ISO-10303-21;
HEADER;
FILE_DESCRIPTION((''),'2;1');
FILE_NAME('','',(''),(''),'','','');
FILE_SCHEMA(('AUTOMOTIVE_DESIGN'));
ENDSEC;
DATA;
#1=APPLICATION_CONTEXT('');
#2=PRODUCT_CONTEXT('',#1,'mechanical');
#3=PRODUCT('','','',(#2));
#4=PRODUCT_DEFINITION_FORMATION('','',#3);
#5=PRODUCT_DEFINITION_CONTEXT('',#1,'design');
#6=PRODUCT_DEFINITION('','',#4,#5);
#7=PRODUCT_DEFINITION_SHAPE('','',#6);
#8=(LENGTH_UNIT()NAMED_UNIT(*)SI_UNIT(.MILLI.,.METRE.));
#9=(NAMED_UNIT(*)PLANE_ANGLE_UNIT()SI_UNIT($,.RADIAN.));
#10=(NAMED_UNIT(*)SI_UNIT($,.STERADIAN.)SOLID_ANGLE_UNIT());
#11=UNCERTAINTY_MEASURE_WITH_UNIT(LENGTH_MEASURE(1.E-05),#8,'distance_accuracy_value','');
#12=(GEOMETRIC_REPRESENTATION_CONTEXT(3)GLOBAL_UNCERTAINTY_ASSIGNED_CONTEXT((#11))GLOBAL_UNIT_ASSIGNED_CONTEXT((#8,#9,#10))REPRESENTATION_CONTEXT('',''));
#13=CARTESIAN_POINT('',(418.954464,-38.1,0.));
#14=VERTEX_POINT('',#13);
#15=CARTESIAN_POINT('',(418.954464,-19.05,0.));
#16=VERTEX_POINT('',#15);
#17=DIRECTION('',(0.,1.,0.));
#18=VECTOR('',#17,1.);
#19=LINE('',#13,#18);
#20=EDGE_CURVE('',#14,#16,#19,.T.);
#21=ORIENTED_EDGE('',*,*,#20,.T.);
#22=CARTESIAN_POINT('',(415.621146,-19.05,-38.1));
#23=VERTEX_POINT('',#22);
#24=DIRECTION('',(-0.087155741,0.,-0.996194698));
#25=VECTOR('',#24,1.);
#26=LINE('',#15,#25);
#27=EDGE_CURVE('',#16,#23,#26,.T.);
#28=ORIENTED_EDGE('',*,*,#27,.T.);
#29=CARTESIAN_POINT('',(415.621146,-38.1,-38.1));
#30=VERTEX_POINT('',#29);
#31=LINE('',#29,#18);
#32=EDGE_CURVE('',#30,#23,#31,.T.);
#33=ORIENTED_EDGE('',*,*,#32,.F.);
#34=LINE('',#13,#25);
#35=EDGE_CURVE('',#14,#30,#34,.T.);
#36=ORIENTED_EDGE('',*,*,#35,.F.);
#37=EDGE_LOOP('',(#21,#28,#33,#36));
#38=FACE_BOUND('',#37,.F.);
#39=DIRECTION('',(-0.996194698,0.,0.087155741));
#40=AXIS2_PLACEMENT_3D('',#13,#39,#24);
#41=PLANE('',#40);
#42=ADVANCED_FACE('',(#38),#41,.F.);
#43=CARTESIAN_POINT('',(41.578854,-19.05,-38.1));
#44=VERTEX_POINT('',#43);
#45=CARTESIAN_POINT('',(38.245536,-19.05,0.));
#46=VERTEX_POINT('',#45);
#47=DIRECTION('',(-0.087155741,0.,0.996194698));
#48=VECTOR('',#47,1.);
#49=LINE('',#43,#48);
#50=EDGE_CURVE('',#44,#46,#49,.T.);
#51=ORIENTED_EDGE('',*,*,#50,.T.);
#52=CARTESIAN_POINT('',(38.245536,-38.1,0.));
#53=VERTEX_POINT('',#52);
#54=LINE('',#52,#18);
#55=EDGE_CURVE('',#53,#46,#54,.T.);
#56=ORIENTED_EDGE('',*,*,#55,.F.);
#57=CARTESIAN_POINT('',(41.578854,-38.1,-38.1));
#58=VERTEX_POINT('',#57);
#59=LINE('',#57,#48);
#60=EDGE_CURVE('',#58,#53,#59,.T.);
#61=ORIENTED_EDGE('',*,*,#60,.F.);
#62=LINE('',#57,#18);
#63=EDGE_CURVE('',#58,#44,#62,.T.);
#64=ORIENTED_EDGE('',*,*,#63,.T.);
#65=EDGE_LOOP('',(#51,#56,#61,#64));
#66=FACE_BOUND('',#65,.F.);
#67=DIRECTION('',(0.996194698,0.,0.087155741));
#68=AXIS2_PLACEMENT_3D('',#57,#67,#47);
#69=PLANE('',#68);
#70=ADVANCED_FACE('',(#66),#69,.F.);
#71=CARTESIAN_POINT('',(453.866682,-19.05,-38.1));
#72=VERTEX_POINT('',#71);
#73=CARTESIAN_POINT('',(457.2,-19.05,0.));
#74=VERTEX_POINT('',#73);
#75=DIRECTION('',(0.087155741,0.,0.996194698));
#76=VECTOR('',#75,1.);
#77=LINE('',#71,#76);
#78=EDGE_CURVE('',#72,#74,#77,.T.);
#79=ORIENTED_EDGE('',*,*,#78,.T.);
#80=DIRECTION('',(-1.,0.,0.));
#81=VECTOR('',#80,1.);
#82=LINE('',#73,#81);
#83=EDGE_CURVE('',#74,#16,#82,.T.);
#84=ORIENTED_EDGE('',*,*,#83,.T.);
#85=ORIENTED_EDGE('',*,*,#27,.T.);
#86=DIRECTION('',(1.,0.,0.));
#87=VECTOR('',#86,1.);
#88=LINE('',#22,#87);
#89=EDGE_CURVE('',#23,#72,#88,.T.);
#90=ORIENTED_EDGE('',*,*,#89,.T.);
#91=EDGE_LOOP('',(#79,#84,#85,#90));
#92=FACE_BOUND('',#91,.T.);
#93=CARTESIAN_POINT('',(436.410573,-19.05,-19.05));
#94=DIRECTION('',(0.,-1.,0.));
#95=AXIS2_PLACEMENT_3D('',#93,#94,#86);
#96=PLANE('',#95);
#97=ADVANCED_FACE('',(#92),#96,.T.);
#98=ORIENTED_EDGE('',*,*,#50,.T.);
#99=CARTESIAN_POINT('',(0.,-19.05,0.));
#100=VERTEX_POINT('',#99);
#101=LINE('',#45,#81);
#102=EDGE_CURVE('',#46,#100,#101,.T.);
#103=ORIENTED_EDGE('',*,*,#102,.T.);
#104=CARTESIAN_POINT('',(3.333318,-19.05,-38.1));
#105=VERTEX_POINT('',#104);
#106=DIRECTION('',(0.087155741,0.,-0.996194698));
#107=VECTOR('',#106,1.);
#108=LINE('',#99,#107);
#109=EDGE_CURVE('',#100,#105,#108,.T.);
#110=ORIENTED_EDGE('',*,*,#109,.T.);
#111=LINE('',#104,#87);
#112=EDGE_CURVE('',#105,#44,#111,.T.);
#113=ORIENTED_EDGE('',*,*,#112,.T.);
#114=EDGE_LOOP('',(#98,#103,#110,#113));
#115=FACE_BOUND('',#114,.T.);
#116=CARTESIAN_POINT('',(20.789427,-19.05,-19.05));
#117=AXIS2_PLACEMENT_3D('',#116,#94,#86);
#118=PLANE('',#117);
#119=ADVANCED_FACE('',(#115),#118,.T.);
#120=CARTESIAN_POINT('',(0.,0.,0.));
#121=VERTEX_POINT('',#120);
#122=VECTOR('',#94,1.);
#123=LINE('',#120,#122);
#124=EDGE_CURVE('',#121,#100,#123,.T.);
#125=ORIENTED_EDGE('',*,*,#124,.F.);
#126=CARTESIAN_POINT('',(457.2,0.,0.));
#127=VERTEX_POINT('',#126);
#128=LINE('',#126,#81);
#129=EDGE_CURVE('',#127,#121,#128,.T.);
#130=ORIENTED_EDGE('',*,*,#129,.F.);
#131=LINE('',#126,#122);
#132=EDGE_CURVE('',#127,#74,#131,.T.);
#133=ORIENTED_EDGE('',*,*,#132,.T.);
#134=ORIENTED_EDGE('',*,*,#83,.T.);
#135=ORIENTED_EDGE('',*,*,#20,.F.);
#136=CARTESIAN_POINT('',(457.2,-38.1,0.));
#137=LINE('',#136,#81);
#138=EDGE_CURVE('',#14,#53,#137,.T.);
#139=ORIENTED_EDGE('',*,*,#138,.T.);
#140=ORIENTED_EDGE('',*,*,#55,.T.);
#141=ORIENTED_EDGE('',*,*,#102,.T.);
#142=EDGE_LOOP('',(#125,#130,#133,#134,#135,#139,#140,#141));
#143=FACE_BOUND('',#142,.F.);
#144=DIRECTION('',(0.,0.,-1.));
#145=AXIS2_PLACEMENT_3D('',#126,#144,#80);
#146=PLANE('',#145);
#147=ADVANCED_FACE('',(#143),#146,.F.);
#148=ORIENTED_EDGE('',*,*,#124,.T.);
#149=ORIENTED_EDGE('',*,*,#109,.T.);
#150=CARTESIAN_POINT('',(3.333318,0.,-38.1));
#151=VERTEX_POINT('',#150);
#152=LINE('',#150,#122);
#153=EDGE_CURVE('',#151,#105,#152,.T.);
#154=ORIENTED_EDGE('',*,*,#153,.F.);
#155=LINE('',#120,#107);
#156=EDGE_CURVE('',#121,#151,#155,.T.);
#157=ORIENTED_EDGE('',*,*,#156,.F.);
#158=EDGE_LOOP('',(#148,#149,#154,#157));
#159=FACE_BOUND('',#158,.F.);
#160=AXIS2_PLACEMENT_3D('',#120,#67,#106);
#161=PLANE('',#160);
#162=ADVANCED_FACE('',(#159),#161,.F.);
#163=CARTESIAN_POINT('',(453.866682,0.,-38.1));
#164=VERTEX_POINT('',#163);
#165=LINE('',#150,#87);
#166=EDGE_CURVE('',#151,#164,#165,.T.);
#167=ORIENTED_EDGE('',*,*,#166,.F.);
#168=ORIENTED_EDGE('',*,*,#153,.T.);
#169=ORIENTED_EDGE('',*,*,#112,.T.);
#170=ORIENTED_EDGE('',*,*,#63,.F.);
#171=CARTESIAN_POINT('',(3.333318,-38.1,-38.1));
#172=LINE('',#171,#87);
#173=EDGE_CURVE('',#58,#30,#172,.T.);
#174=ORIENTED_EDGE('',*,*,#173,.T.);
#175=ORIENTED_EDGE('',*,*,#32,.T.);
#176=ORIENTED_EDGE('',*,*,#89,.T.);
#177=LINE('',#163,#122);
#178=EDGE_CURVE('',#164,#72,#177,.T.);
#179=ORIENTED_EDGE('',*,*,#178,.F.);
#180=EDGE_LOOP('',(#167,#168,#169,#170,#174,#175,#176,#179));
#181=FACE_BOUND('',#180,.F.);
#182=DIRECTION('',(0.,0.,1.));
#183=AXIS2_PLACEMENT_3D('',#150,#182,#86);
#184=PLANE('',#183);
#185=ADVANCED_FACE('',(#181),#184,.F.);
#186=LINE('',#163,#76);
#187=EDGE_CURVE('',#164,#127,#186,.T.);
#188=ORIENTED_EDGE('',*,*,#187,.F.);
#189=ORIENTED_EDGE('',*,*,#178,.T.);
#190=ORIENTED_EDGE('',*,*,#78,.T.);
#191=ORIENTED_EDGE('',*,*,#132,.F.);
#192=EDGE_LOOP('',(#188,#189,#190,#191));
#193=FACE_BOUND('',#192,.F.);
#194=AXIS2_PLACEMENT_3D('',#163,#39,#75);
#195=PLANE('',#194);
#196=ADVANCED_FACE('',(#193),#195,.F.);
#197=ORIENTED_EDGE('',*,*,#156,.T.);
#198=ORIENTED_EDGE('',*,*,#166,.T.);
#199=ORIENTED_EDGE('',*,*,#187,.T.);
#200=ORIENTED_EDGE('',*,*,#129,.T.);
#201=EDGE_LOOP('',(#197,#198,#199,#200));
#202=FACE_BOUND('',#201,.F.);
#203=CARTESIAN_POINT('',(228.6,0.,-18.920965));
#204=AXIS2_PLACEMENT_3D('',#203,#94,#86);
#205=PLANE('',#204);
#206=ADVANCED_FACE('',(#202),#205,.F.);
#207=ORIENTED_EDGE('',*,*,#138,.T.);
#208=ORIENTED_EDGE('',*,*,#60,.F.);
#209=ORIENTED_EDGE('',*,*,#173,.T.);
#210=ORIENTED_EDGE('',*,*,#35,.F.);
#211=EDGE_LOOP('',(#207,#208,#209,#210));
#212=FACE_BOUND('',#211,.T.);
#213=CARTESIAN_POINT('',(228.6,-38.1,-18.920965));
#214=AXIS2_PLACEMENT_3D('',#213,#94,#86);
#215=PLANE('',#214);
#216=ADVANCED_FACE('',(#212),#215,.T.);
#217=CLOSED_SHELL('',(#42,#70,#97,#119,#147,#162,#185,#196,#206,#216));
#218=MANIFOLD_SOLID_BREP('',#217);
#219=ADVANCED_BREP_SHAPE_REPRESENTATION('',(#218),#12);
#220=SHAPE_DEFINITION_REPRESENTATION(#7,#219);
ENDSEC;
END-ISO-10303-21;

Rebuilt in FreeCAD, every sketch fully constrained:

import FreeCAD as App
import Part
import Sketcher

V = App.Vector
Q = App.Units.Quantity

doc = App.newDocument("Part")
body = doc.addObject("PartDesign::Body", "Body")

sketch1 = doc.addObject("Sketcher::SketchObject", "Sketch")
body.addObject(sketch1)
sketch1.AttachmentSupport = (doc.XZ_Plane, [""])
sketch1.MapMode = "FlatFace"
sketch1.addGeometry([
    Part.LineSegment(V(457, 0, 0), V(0, 0, 0)),
    Part.LineSegment(V(0, 0, 0), V(3, -38, 0)),
    Part.LineSegment(V(3, -38, 0), V(454, -38, 0)),
    Part.LineSegment(V(454, -38, 0), V(457, 0, 0)),
], False)
sketch1.addConstraint([
    Sketcher.Constraint("Coincident", 0, 2, 1, 1),
    Sketcher.Constraint("Coincident", 1, 2, 2, 1),
    Sketcher.Constraint("Coincident", 2, 2, 3, 1),
    Sketcher.Constraint("Coincident", 3, 2, 0, 1),
    Sketcher.Constraint("Horizontal", 0),
    Sketcher.Constraint("Horizontal", 2),
    Sketcher.Constraint("Coincident", 0, 2, -1, 1),
    Sketcher.Constraint("Equal", 1, 3),
    Sketcher.Constraint("DistanceX", 0, 2, 0, 1, Q("18 in")),
    Sketcher.Constraint("Angle", 1, Q("-85 deg")),
    Sketcher.Constraint("DistanceY", 1, 2, -1, 1, Q("1.5 in")),
])
pad1 = doc.addObject("PartDesign::Pad", "Pad")
body.addObject(pad1)
pad1.Profile = sketch1
pad1.Length = Q("1.5 in")

sketch2 = doc.addObject("Sketcher::SketchObject", "Sketch001")
body.addObject(sketch2)
sketch2.AttachmentSupport = (doc.XZ_Plane, [""])
sketch2.MapMode = "FlatFace"
sketch2.AttachmentOffset = App.Placement(V(0, 0, 1.5 * 25.4), App.Rotation())
sketch2.addGeometry([
    Part.LineSegment(V(457, 0, 0), V(419, 0, 0)),
    Part.LineSegment(V(419, 0, 0), V(416, -38, 0)),
    Part.LineSegment(V(416, -38, 0), V(454, -38, 0)),
    Part.LineSegment(V(454, -38, 0), V(457, 0, 0)),
], False)
sketch2.addConstraint([
    Sketcher.Constraint("Coincident", 0, 2, 1, 1),
    Sketcher.Constraint("Coincident", 1, 2, 2, 1),
    Sketcher.Constraint("Coincident", 2, 2, 3, 1),
    Sketcher.Constraint("Coincident", 3, 2, 0, 1),
    Sketcher.Constraint("Horizontal", 0),
    Sketcher.Constraint("Horizontal", 2),
    Sketcher.Constraint("PointOnObject", 0, 2, -1),
    Sketcher.Constraint("Parallel", 1, 3),
    Sketcher.Constraint("DistanceX", -1, 1, 3, 2, Q("18 in")),
    Sketcher.Constraint("Angle", 1, Q("-95 deg")),
    Sketcher.Constraint("DistanceY", 1, 2, -1, 1, Q("1.5 in")),
    Sketcher.Constraint("DistanceX", 0, 2, 0, 1, 38.245536),
])
pocket1 = doc.addObject("PartDesign::Pocket", "Pocket")
body.addObject(pocket1)
pocket1.Profile = sketch2
pocket1.Length = Q("0.75 in")

sketch3 = doc.addObject("Sketcher::SketchObject", "Sketch002")
body.addObject(sketch3)
sketch3.AttachmentSupport = (doc.XZ_Plane, [""])
sketch3.MapMode = "FlatFace"
sketch3.AttachmentOffset = App.Placement(V(0, 0, 1.5 * 25.4), App.Rotation())
sketch3.addGeometry([
    Part.LineSegment(V(42, -38, 0), V(38, 0, 0)),
    Part.LineSegment(V(38, 0, 0), V(0, 0, 0)),
    Part.LineSegment(V(0, 0, 0), V(3, -38, 0)),
    Part.LineSegment(V(3, -38, 0), V(42, -38, 0)),
], False)
sketch3.addConstraint([
    Sketcher.Constraint("Coincident", 0, 2, 1, 1),
    Sketcher.Constraint("Coincident", 1, 2, 2, 1),
    Sketcher.Constraint("Coincident", 2, 2, 3, 1),
    Sketcher.Constraint("Coincident", 3, 2, 0, 1),
    Sketcher.Constraint("Horizontal", 1),
    Sketcher.Constraint("Horizontal", 3),
    Sketcher.Constraint("Coincident", 1, 2, -1, 1),
    Sketcher.Constraint("Parallel", 0, 2),
    Sketcher.Constraint("Angle", 0, Q("95 deg")),
    Sketcher.Constraint("DistanceY", 2, 2, -1, 1, Q("1.5 in")),
    Sketcher.Constraint("DistanceX", 1, 2, 1, 1, 38.245536),
])
pocket2 = doc.addObject("PartDesign::Pocket", "Pocket001")
body.addObject(pocket2)
pocket2.Profile = sketch3
pocket2.Length = Q("0.75 in")

doc.recompute()
